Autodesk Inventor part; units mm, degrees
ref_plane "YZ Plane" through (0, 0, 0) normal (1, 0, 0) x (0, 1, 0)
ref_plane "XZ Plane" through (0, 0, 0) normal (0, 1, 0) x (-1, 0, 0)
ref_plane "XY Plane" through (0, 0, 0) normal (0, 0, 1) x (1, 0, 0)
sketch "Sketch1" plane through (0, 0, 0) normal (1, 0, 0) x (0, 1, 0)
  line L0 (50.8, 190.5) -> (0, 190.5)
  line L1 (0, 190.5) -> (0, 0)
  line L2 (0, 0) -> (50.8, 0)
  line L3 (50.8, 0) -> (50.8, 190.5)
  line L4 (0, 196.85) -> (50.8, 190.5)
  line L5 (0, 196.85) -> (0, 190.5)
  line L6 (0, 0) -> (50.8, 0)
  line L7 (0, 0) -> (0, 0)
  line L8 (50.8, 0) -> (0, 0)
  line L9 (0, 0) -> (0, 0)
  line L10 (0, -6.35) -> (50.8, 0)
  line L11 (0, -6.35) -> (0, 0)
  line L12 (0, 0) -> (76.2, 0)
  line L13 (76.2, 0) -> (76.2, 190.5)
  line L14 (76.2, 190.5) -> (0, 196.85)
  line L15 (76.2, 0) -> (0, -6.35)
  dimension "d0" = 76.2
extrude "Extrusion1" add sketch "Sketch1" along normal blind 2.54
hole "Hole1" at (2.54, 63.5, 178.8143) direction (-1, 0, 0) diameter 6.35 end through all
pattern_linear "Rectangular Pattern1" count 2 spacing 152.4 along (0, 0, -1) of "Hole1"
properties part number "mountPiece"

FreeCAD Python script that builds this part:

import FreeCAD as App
import Part
import Sketcher
Q = App.Units.Quantity

doc = App.newDocument("Part")
body = doc.addObject("PartDesign::Body", "Body")

sketch1 = doc.addObject("Sketcher::SketchObject", "Sketch")
body.addObject(sketch1)
sketch1.AttachmentSupport = (doc.YZ_Plane, [""])
sketch1.MapMode = "FlatFace"
sketch1.addGeometry([
    Part.LineSegment(App.Vector(0, -6, 0), App.Vector(76, 0, 0)),
    Part.LineSegment(App.Vector(76, 0, 0), App.Vector(76, 190, 0)),
    Part.LineSegment(App.Vector(76, 190, 0), App.Vector(0, 197, 0)),
    Part.LineSegment(App.Vector(0, 197, 0), App.Vector(0, -6, 0)),
], False)
sketch1.addConstraint([
    Sketcher.Constraint("Coincident", 0, 2, 1, 1),
    Sketcher.Constraint("Coincident", 1, 2, 2, 1),
    Sketcher.Constraint("Coincident", 2, 2, 3, 1),
    Sketcher.Constraint("Coincident", 3, 2, 0, 1),
    Sketcher.Constraint("Vertical", 1),
    Sketcher.Constraint("Vertical", 3),
    Sketcher.Constraint("PointOnObject", 0, 2, -1),
    Sketcher.Constraint("PointOnObject", 2, 2, -2),
    Sketcher.Constraint("Equal", 0, 2),
    Sketcher.Constraint("DistanceX", -1, 1, 0, 2, Q("3 in")),
    Sketcher.Constraint("DistanceY", 3, 2, 3, 1, Q("8 in")),
    Sketcher.Constraint("DistanceY", 1, 1, 1, 2, Q("7.5 in")),
])
pad1 = doc.addObject("PartDesign::Pad", "Pad")
body.addObject(pad1)
pad1.Profile = sketch1
pad1.Length = Q("0.1 in")

sketch2 = doc.addObject("Sketcher::SketchObject", "Sketch001")
body.addObject(sketch2)
sketch2.AttachmentSupport = (doc.YZ_Plane, [""])
sketch2.MapMode = "FlatFace"
sketch2.AttachmentOffset = App.Placement(App.Vector(0, 0, 0.1 * 25.4), App.Rotation())
sketch2.addGeometry(Part.Circle(App.Vector(63.5, 178.8, 0), App.Vector(0, 0, 1), 3.2), False)
sketch2.addConstraint([
    Sketcher.Constraint("Diameter", 0, Q("0.25 in")),
    Sketcher.Constraint("DistanceX", -1, 1, 0, 3, Q("2.5 in")),
    Sketcher.Constraint("DistanceY", -1, 1, 0, 3, 178.8143),
])
doc.recompute()
hole = doc.addObject("PartDesign::Hole", "Hole")
body.addObject(hole)
hole.Profile = sketch2
hole.ThreadType = "None"
hole.Diameter = Q("0.25 in")
hole.DepthType = "ThroughAll"
doc.recompute()

linearpattern = doc.addObject("PartDesign::LinearPattern", "LinearPattern")
body.addObject(linearpattern)
linearpattern.Originals = [hole]
linearpattern.Direction = (doc.Z_Axis, [""])
linearpattern.Mode = "offset"
linearpattern.Offset = Q("6 in")
linearpattern.Occurrences = 2
linearpattern.Reversed = True
body.Tip = linearpattern

doc.recompute()
